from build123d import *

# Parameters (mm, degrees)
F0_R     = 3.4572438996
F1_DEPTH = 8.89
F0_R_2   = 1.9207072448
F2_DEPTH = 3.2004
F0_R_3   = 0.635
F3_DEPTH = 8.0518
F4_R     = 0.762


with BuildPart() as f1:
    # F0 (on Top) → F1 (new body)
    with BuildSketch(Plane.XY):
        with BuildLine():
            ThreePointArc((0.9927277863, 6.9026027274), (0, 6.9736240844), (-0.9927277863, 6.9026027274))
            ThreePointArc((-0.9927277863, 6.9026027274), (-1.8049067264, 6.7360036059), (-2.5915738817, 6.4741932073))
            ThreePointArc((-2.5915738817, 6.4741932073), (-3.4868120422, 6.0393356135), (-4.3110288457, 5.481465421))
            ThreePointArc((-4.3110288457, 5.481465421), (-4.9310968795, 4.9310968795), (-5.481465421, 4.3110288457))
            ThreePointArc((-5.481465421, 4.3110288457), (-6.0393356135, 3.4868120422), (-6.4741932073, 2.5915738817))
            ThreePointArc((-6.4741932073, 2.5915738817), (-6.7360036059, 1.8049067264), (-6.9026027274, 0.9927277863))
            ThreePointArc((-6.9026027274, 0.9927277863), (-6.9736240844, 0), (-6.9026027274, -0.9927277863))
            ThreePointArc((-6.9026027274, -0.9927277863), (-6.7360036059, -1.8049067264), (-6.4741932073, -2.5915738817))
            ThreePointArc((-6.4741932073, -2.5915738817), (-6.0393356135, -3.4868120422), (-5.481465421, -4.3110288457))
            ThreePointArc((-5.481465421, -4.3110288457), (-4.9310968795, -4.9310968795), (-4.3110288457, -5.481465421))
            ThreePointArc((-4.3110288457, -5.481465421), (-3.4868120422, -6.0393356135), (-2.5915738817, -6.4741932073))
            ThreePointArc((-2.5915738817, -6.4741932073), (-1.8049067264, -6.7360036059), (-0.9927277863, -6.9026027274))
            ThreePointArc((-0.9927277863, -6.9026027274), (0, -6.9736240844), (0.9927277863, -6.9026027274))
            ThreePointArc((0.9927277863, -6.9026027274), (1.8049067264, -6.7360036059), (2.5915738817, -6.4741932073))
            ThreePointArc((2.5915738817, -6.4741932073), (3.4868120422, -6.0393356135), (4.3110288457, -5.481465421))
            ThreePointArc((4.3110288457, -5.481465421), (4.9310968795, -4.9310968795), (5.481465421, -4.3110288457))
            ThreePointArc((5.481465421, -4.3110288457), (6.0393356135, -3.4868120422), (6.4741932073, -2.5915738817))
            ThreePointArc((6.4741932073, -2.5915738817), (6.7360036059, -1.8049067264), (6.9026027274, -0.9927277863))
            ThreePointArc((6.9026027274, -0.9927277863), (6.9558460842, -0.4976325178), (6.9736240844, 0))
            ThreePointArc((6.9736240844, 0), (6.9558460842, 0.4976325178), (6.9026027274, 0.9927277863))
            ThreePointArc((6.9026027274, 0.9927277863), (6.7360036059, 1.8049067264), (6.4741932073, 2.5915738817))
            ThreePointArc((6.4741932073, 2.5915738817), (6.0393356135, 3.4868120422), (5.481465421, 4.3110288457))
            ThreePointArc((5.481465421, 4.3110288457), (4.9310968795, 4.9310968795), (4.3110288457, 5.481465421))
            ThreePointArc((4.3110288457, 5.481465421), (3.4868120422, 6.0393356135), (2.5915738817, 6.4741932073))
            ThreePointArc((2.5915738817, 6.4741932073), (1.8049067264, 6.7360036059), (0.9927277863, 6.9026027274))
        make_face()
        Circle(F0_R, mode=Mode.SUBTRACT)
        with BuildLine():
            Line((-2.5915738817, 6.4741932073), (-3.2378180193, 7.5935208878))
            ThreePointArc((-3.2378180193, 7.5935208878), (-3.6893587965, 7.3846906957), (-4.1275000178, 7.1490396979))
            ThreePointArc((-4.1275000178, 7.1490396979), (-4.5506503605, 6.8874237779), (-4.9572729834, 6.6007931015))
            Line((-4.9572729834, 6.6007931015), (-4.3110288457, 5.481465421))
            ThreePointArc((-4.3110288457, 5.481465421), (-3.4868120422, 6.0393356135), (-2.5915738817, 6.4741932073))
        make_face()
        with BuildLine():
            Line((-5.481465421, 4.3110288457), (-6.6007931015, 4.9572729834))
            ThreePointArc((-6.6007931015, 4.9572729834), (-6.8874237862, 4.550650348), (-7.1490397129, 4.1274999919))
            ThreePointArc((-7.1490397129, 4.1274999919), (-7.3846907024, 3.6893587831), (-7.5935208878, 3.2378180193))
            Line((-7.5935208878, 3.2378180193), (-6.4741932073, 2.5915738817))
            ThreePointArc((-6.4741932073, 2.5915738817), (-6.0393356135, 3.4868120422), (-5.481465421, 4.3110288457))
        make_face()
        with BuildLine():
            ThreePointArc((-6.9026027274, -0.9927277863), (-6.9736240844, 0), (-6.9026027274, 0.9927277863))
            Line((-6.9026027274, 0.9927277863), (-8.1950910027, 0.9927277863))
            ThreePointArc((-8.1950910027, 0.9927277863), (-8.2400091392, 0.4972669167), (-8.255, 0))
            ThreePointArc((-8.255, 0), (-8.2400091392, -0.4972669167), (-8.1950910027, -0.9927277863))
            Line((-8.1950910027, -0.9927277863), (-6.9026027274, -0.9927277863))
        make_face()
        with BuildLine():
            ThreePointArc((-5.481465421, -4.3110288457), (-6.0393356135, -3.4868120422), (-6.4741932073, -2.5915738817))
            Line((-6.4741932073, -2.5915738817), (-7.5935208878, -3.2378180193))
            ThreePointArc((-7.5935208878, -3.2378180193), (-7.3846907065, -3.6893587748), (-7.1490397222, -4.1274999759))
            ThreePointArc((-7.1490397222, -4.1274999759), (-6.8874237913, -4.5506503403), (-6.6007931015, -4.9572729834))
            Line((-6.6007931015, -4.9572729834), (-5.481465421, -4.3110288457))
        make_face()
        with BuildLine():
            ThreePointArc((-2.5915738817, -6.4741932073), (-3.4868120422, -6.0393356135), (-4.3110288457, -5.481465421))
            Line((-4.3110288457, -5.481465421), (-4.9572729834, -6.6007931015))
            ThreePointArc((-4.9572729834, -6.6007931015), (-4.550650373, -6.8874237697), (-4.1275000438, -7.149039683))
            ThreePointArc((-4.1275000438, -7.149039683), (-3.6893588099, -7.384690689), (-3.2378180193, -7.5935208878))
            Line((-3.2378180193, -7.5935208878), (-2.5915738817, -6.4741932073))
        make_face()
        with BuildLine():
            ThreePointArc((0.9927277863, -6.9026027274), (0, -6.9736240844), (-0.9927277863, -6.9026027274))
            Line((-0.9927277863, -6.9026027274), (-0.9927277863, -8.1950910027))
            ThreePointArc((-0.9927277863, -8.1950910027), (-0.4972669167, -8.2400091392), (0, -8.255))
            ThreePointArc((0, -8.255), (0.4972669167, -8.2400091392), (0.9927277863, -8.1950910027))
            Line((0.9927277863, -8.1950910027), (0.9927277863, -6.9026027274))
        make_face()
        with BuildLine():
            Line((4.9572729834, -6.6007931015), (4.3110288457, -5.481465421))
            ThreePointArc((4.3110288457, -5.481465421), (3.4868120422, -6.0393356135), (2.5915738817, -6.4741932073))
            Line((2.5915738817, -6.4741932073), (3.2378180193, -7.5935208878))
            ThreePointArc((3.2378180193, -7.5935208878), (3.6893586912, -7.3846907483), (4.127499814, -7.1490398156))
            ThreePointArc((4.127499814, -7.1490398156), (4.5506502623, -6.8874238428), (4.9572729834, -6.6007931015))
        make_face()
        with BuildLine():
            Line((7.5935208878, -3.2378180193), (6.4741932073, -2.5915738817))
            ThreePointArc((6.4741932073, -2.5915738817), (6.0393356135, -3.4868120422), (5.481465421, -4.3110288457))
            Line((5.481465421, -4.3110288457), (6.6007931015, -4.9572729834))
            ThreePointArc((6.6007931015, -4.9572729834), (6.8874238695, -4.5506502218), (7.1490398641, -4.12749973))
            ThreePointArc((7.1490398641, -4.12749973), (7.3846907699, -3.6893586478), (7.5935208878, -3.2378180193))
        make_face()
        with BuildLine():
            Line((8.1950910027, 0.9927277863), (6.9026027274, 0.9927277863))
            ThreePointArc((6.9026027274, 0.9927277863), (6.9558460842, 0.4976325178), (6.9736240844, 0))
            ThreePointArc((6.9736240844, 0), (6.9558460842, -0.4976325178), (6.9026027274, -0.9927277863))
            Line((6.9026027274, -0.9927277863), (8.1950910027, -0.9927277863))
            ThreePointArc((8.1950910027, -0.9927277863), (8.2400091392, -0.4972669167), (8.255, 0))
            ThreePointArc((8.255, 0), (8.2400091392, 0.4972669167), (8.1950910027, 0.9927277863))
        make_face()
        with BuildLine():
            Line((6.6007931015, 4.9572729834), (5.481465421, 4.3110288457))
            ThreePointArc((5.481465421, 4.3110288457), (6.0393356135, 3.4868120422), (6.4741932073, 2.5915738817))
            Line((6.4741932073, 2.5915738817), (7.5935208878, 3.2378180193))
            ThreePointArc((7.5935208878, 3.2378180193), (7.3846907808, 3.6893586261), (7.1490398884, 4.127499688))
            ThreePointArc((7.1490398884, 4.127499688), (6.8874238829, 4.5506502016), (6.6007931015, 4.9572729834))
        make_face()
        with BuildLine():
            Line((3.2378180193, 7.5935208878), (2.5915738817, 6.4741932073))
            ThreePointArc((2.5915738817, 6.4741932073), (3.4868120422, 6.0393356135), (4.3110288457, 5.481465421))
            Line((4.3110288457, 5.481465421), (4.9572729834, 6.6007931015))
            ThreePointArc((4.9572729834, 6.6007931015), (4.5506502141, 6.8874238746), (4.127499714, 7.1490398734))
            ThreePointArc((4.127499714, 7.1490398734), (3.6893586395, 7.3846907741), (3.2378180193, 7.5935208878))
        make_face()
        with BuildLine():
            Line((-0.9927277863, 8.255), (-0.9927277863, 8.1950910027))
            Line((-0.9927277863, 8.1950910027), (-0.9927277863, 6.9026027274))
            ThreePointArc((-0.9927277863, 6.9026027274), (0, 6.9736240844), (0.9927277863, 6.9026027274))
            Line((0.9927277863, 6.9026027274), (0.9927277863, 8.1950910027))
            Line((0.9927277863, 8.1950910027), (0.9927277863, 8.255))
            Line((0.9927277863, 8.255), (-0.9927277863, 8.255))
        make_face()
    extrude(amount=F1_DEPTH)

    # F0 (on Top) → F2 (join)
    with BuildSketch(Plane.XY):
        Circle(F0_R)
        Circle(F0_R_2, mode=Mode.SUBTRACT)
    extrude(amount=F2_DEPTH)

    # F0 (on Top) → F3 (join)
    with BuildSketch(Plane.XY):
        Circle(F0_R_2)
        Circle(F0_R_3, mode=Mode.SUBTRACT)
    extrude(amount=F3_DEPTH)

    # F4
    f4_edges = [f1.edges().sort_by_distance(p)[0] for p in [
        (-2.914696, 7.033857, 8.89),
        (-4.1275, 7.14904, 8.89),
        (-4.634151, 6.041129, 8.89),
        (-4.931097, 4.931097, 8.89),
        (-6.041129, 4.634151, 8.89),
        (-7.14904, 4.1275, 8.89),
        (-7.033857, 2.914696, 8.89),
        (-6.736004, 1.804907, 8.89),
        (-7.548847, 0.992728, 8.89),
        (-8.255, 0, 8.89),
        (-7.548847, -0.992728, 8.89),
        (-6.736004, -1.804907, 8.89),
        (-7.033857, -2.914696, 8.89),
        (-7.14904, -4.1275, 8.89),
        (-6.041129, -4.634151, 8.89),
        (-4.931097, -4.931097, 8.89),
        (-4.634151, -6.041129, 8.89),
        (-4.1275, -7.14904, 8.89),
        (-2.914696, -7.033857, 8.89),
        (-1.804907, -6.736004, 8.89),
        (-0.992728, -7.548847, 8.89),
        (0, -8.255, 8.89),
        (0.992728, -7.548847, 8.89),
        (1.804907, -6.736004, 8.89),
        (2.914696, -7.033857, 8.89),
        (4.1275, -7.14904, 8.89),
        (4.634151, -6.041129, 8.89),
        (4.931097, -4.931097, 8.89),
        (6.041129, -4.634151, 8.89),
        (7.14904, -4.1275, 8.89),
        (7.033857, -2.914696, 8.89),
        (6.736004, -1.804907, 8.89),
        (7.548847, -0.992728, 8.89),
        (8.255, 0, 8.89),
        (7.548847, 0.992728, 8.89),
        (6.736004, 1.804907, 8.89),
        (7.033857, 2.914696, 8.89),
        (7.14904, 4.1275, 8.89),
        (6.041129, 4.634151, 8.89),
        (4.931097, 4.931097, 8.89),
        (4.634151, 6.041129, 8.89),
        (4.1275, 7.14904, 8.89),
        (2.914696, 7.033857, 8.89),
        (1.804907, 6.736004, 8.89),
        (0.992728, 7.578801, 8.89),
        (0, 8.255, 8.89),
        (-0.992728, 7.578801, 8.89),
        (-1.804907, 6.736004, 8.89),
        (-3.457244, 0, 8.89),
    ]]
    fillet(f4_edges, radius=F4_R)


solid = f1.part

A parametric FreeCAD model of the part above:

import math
import FreeCAD as App
import Part
import Sketcher
Q = App.Units.Quantity


def edges_at(feature, points):
    """Names of the edges that pass closest to the given points."""
    edges = feature.Shape.Edges
    near = lambda p: min(range(len(edges)), key=lambda i: edges[i].distToShape(Part.Vertex(*p))[0])
    return sorted({f"Edge{near(p) + 1}" for p in points})

doc = App.newDocument("Part")
body = doc.addObject("PartDesign::Body", "Body")

# Sketch on XY plane
sketch1 = doc.addObject("Sketcher::SketchObject", "Sketch")
body.addObject(sketch1)
sketch1.AttachmentSupport = (doc.XY_Plane, [""])
sketch1.MapMode = "FlatFace"
sketch1.addGeometry(Part.ArcOfCircle(Part.Circle(App.Vector(0, 0, 0), App.Vector(0, 0, 1), 7), math.radians(98.18), math.radians(111.82)), False)
sketch1.addGeometry(Part.LineSegment(App.Vector(-2.6, 6.5, 0), App.Vector(-3.2, 7.6, 0)), False)
sketch1.addGeometry(Part.ArcOfCircle(Part.Circle(App.Vector(0, 0, 0), App.Vector(0, 0, 1), 8.3), math.radians(113.09), math.radians(120)), False)
sketch1.addGeometry(Part.ArcOfCircle(Part.Circle(App.Vector(0, 0, 0), App.Vector(0, 0, 1), 8.3), math.radians(120), math.radians(126.91)), False)
sketch1.addGeometry(Part.LineSegment(App.Vector(-5, 6.6, 0), App.Vector(-4.3, 5.5, 0)), False)
sketch1.addGeometry(Part.ArcOfCircle(Part.Circle(App.Vector(0, 0, 0), App.Vector(0, 0, 1), 7), math.radians(128.18), math.radians(141.82)), False)
sketch1.addGeometry(Part.LineSegment(App.Vector(-5.5, 4.3, 0), App.Vector(-6.6, 5, 0)), False)
sketch1.addGeometry(Part.ArcOfCircle(Part.Circle(App.Vector(0, 0, 0), App.Vector(0, 0, 1), 8.3), math.radians(143.09), math.radians(150)), False)
sketch1.addGeometry(Part.ArcOfCircle(Part.Circle(App.Vector(0, 0, 0), App.Vector(0, 0, 1), 8.3), math.radians(150), math.radians(156.91)), False)
sketch1.addGeometry(Part.LineSegment(App.Vector(-7.6, 3.2, 0), App.Vector(-6.5, 2.6, 0)), False)
sketch1.addGeometry(Part.ArcOfCircle(Part.Circle(App.Vector(0, 0, 0), App.Vector(0, 0, 1), 7), math.radians(158.18), math.radians(171.82)), False)
sketch1.addGeometry(Part.LineSegment(App.Vector(-6.9, 1, 0), App.Vector(-8.2, 1, 0)), False)
sketch1.addGeometry(Part.ArcOfCircle(Part.Circle(App.Vector(0, 0, 0), App.Vector(0, 0, 1), 8.3), math.radians(173.09), math.radians(180)), False)
sketch1.addGeometry(Part.ArcOfCircle(Part.Circle(App.Vector(0, 0, 0), App.Vector(0, 0, 1), 8.3), math.radians(180), math.radians(186.91)), False)
sketch1.addGeometry(Part.LineSegment(App.Vector(-8.2, -1, 0), App.Vector(-6.9, -1, 0)), False)
sketch1.addGeometry(Part.ArcOfCircle(Part.Circle(App.Vector(0, 0, 0), App.Vector(0, 0, 1), 7), math.radians(-171.82), math.radians(-158.18)), False)
sketch1.addGeometry(Part.LineSegment(App.Vector(-6.5, -2.6, 0), App.Vector(-7.6, -3.2, 0)), False)
sketch1.addGeometry(Part.ArcOfCircle(Part.Circle(App.Vector(0, 0, 0), App.Vector(0, 0, 1), 8.3), math.radians(-156.91), math.radians(-150)), False)
sketch1.addGeometry(Part.ArcOfCircle(Part.Circle(App.Vector(0, 0, 0), App.Vector(0, 0, 1), 8.3), math.radians(-150), math.radians(-143.09)), False)
sketch1.addGeometry(Part.LineSegment(App.Vector(-6.6, -5, 0), App.Vector(-5.5, -4.3, 0)), False)
sketch1.addGeometry(Part.ArcOfCircle(Part.Circle(App.Vector(0, 0, 0), App.Vector(0, 0, 1), 7), math.radians(-141.82), math.radians(-128.18)), False)
sketch1.addGeometry(Part.LineSegment(App.Vector(-4.3, -5.5, 0), App.Vector(-5, -6.6, 0)), False)
sketch1.addGeometry(Part.ArcOfCircle(Part.Circle(App.Vector(0, 0, 0), App.Vector(0, 0, 1), 8.3), math.radians(-126.91), math.radians(-120)), False)
sketch1.addGeometry(Part.ArcOfCircle(Part.Circle(App.Vector(0, 0, 0), App.Vector(0, 0, 1), 8.3), math.radians(-120), math.radians(-113.09)), False)
sketch1.addGeometry(Part.LineSegment(App.Vector(-3.2, -7.6, 0), App.Vector(-2.6, -6.5, 0)), False)
sketch1.addGeometry(Part.ArcOfCircle(Part.Circle(App.Vector(0, 0, 0), App.Vector(0, 0, 1), 7), math.radians(-111.82), math.radians(-98.18)), False)
sketch1.addGeometry(Part.LineSegment(App.Vector(-1, -6.9, 0), App.Vector(-1, -8.2, 0)), False)
sketch1.addGeometry(Part.ArcOfCircle(Part.Circle(App.Vector(0, 0, 0), App.Vector(0, 0, 1), 8.3), math.radians(-96.91), math.radians(-90)), False)
sketch1.addGeometry(Part.ArcOfCircle(Part.Circle(App.Vector(0, 0, 0), App.Vector(0, 0, 1), 8.3), math.radians(-90), math.radians(-83.09)), False)
sketch1.addGeometry(Part.LineSegment(App.Vector(1, -8.2, 0), App.Vector(1, -6.9, 0)), False)
sketch1.addGeometry(Part.ArcOfCircle(Part.Circle(App.Vector(0, 0, 0), App.Vector(0, 0, 1), 7), math.radians(-81.82), math.radians(-68.18)), False)
sketch1.addGeometry(Part.LineSegment(App.Vector(2.6, -6.5, 0), App.Vector(3.2, -7.6, 0)), False)
sketch1.addGeometry(Part.ArcOfCircle(Part.Circle(App.Vector(0, 0, 0), App.Vector(0, 0, 1), 8.3), math.radians(-66.91), math.radians(-60)), False)
sketch1.addGeometry(Part.ArcOfCircle(Part.Circle(App.Vector(0, 0, 0), App.Vector(0, 0, 1), 8.3), math.radians(-60), math.radians(-53.09)), False)
sketch1.addGeometry(Part.LineSegment(App.Vector(5, -6.6, 0), App.Vector(4.3, -5.5, 0)), False)
sketch1.addGeometry(Part.ArcOfCircle(Part.Circle(App.Vector(0, 0, 0), App.Vector(0, 0, 1), 7), math.radians(-51.82), math.radians(-38.18)), False)
sketch1.addGeometry(Part.LineSegment(App.Vector(5.5, -4.3, 0), App.Vector(6.6, -5, 0)), False)
sketch1.addGeometry(Part.ArcOfCircle(Part.Circle(App.Vector(0, 0, 0), App.Vector(0, 0, 1), 8.3), math.radians(-36.91), math.radians(-30)), False)
sketch1.addGeometry(Part.ArcOfCircle(Part.Circle(App.Vector(0, 0, 0), App.Vector(0, 0, 1), 8.3), math.radians(-30), math.radians(-23.09)), False)
sketch1.addGeometry(Part.LineSegment(App.Vector(7.6, -3.2, 0), App.Vector(6.5, -2.6, 0)), False)
sketch1.addGeometry(Part.ArcOfCircle(Part.Circle(App.Vector(0, 0, 0), App.Vector(0, 0, 1), 7), math.radians(-21.82), math.radians(-8.18)), False)
sketch1.addGeometry(Part.LineSegment(App.Vector(6.9, -1, 0), App.Vector(8.2, -1, 0)), False)
sketch1.addGeometry(Part.ArcOfCircle(Part.Circle(App.Vector(0, 0, 0), App.Vector(0, 0, 1), 8.3), math.radians(-6.91), math.radians(0)), False)
sketch1.addGeometry(Part.ArcOfCircle(Part.Circle(App.Vector(0, 0, 0), App.Vector(0, 0, 1), 8.3), math.radians(0), math.radians(6.91)), False)
sketch1.addGeometry(Part.LineSegment(App.Vector(8.2, 1, 0), App.Vector(6.9, 1, 0)), False)
sketch1.addGeometry(Part.ArcOfCircle(Part.Circle(App.Vector(0, 0, 0), App.Vector(0, 0, 1), 7), math.radians(8.18), math.radians(21.82)), False)
sketch1.addGeometry(Part.LineSegment(App.Vector(6.5, 2.6, 0), App.Vector(7.6, 3.2, 0)), False)
sketch1.addGeometry(Part.ArcOfCircle(Part.Circle(App.Vector(0, 0, 0), App.Vector(0, 0, 1), 8.3), math.radians(23.09), math.radians(30)), False)
sketch1.addGeometry(Part.ArcOfCircle(Part.Circle(App.Vector(0, 0, 0), App.Vector(0, 0, 1), 8.3), math.radians(30), math.radians(36.91)), False)
sketch1.addGeometry(Part.LineSegment(App.Vector(6.6, 5, 0), App.Vector(5.5, 4.3, 0)), False)
sketch1.addGeometry(Part.ArcOfCircle(Part.Circle(App.Vector(0, 0, 0), App.Vector(0, 0, 1), 7), math.radians(38.18), math.radians(51.82)), False)
sketch1.addGeometry(Part.LineSegment(App.Vector(4.3, 5.5, 0), App.Vector(5, 6.6, 0)), False)
sketch1.addGeometry(Part.ArcOfCircle(Part.Circle(App.Vector(0, 0, 0), App.Vector(0, 0, 1), 8.3), math.radians(53.09), math.radians(60)), False)
sketch1.addGeometry(Part.ArcOfCircle(Part.Circle(App.Vector(0, 0, 0), App.Vector(0, 0, 1), 8.3), math.radians(60), math.radians(66.91)), False)
sketch1.addGeometry(Part.LineSegment(App.Vector(3.2, 7.6, 0), App.Vector(2.6, 6.5, 0)), False)
sketch1.addGeometry(Part.ArcOfCircle(Part.Circle(App.Vector(0, 0, 0), App.Vector(0, 0, 1), 7), math.radians(68.18), math.radians(81.82)), False)
sketch1.addGeometry(Part.LineSegment(App.Vector(1, 6.9, 0), App.Vector(1, 8.3, 0)), False)
sketch1.addGeometry(Part.LineSegment(App.Vector(1, 8.3, 0), App.Vector(-1, 8.3, 0)), False)
sketch1.addGeometry(Part.LineSegment(App.Vector(-1, 8.3, 0), App.Vector(-1, 6.9, 0)), False)
sketch1.addGeometry(Part.Circle(App.Vector(0, 0, 0), App.Vector(0, 0, 1), 3.5), False)
sketch1.addConstraint(Sketcher.Constraint("Coincident", 0, 2, 1, 1))
sketch1.addConstraint(Sketcher.Constraint("Coincident", 1, 2, 2, 1))
sketch1.addConstraint(Sketcher.Constraint("Tangent", 2, 2, 3, 1))
sketch1.addConstraint(Sketcher.Constraint("Coincident", 3, 2, 4, 1))
sketch1.addConstraint(Sketcher.Constraint("Coincident", 4, 2, 5, 1))
sketch1.addConstraint(Sketcher.Constraint("Coincident", 5, 2, 6, 1))
sketch1.addConstraint(Sketcher.Constraint("Coincident", 6, 2, 7, 1))
sketch1.addConstraint(Sketcher.Constraint("Tangent", 7, 2, 8, 1))
sketch1.addConstraint(Sketcher.Constraint("Coincident", 8, 2, 9, 1))
sketch1.addConstraint(Sketcher.Constraint("Coincident", 9, 2, 10, 1))
sketch1.addConstraint(Sketcher.Constraint("Coincident", 10, 2, 11, 1))
sketch1.addConstraint(Sketcher.Constraint("Coincident", 11, 2, 12, 1))
sketch1.addConstraint(Sketcher.Constraint("Tangent", 12, 2, 13, 1))
sketch1.addConstraint(Sketcher.Constraint("Coincident", 13, 2, 14, 1))
sketch1.addConstraint(Sketcher.Constraint("Coincident", 14, 2, 15, 1))
sketch1.addConstraint(Sketcher.Constraint("Coincident", 15, 2, 16, 1))
sketch1.addConstraint(Sketcher.Constraint("Coincident", 16, 2, 17, 1))
sketch1.addConstraint(Sketcher.Constraint("Tangent", 17, 2, 18, 1))
sketch1.addConstraint(Sketcher.Constraint("Coincident", 18, 2, 19, 1))
sketch1.addConstraint(Sketcher.Constraint("Coincident", 19, 2, 20, 1))
sketch1.addConstraint(Sketcher.Constraint("Coincident", 20, 2, 21, 1))
sketch1.addConstraint(Sketcher.Constraint("Coincident", 21, 2, 22, 1))
sketch1.addConstraint(Sketcher.Constraint("Tangent", 22, 2, 23, 1))
sketch1.addConstraint(Sketcher.Constraint("Coincident", 23, 2, 24, 1))
sketch1.addConstraint(Sketcher.Constraint("Coincident", 24, 2, 25, 1))
sketch1.addConstraint(Sketcher.Constraint("Coincident", 25, 2, 26, 1))
sketch1.addConstraint(Sketcher.Constraint("Coincident", 26, 2, 27, 1))
sketch1.addConstraint(Sketcher.Constraint("Tangent", 27, 2, 28, 1))
sketch1.addConstraint(Sketcher.Constraint("Coincident", 28, 2, 29, 1))
sketch1.addConstraint(Sketcher.Constraint("Coincident", 29, 2, 30, 1))
sketch1.addConstraint(Sketcher.Constraint("Coincident", 30, 2, 31, 1))
sketch1.addConstraint(Sketcher.Constraint("Coincident", 31, 2, 32, 1))
sketch1.addConstraint(Sketcher.Constraint("Tangent", 32, 2, 33, 1))
sketch1.addConstraint(Sketcher.Constraint("Coincident", 33, 2, 34, 1))
sketch1.addConstraint(Sketcher.Constraint("Coincident", 34, 2, 35, 1))
sketch1.addConstraint(Sketcher.Constraint("Coincident", 35, 2, 36, 1))
sketch1.addConstraint(Sketcher.Constraint("Coincident", 36, 2, 37, 1))
sketch1.addConstraint(Sketcher.Constraint("Tangent", 37, 2, 38, 1))
sketch1.addConstraint(Sketcher.Constraint("Coincident", 38, 2, 39, 1))
sketch1.addConstraint(Sketcher.Constraint("Coincident", 39, 2, 40, 1))
sketch1.addConstraint(Sketcher.Constraint("Coincident", 40, 2, 41, 1))
sketch1.addConstraint(Sketcher.Constraint("Coincident", 41, 2, 42, 1))
sketch1.addConstraint(Sketcher.Constraint("Tangent", 42, 2, 43, 1))
sketch1.addConstraint(Sketcher.Constraint("Coincident", 43, 2, 44, 1))
sketch1.addConstraint(Sketcher.Constraint("Coincident", 44, 2, 45, 1))
sketch1.addConstraint(Sketcher.Constraint("Coincident", 45, 2, 46, 1))
sketch1.addConstraint(Sketcher.Constraint("Coincident", 46, 2, 47, 1))
sketch1.addConstraint(Sketcher.Constraint("Tangent", 47, 2, 48, 1))
sketch1.addConstraint(Sketcher.Constraint("Coincident", 48, 2, 49, 1))
sketch1.addConstraint(Sketcher.Constraint("Coincident", 49, 2, 50, 1))
sketch1.addConstraint(Sketcher.Constraint("Coincident", 50, 2, 51, 1))
sketch1.addConstraint(Sketcher.Constraint("Coincident", 51, 2, 52, 1))
sketch1.addConstraint(Sketcher.Constraint("Tangent", 52, 2, 53, 1))
sketch1.addConstraint(Sketcher.Constraint("Coincident", 53, 2, 54, 1))
sketch1.addConstraint(Sketcher.Constraint("Coincident", 54, 2, 55, 1))
sketch1.addConstraint(Sketcher.Constraint("Coincident", 55, 2, 56, 1))
sketch1.addConstraint(Sketcher.Constraint("Coincident", 56, 2, 57, 1))
sketch1.addConstraint(Sketcher.Constraint("Coincident", 57, 2, 58, 1))
sketch1.addConstraint(Sketcher.Constraint("Coincident", 58, 2, 0, 1))
sketch1.addConstraint(Sketcher.Constraint("Horizontal", 11))
sketch1.addConstraint(Sketcher.Constraint("Horizontal", 14))
sketch1.addConstraint(Sketcher.Constraint("Vertical", 26))
sketch1.addConstraint(Sketcher.Constraint("Vertical", 29))
sketch1.addConstraint(Sketcher.Constraint("Horizontal", 41))
sketch1.addConstraint(Sketcher.Constraint("Horizontal", 44))
sketch1.addConstraint(Sketcher.Constraint("Vertical", 56))
sketch1.addConstraint(Sketcher.Constraint("Horizontal", 57))
sketch1.addConstraint(Sketcher.Constraint("Vertical", 58))
sketch1.addConstraint(Sketcher.Constraint("Coincident", 0, 3, -1, 1))
sketch1.addConstraint(Sketcher.Constraint("Coincident", 2, 3, -1, 1))
sketch1.addConstraint(Sketcher.Constraint("Coincident", 5, 3, -1, 1))
sketch1.addConstraint(Sketcher.Constraint("Coincident", 7, 3, -1, 1))
sketch1.addConstraint(Sketcher.Constraint("Coincident", 10, 3, -1, 1))
sketch1.addConstraint(Sketcher.Constraint("Coincident", 12, 3, -1, 1))
sketch1.addConstraint(Sketcher.Constraint("Coincident", 15, 3, -1, 1))
sketch1.addConstraint(Sketcher.Constraint("Coincident", 17, 3, -1, 1))
sketch1.addConstraint(Sketcher.Constraint("Coincident", 20, 3, -1, 1))
sketch1.addConstraint(Sketcher.Constraint("Coincident", 22, 3, -1, 1))
sketch1.addConstraint(Sketcher.Constraint("Coincident", 25, 3, -1, 1))
sketch1.addConstraint(Sketcher.Constraint("Coincident", 27, 3, -1, 1))
sketch1.addConstraint(Sketcher.Constraint("Coincident", 30, 3, -1, 1))
sketch1.addConstraint(Sketcher.Constraint("Coincident", 32, 3, -1, 1))
sketch1.addConstraint(Sketcher.Constraint("Coincident", 35, 3, -1, 1))
sketch1.addConstraint(Sketcher.Constraint("Coincident", 37, 3, -1, 1))
sketch1.addConstraint(Sketcher.Constraint("Coincident", 40, 3, -1, 1))
sketch1.addConstraint(Sketcher.Constraint("Coincident", 42, 3, -1, 1))
sketch1.addConstraint(Sketcher.Constraint("Coincident", 45, 3, -1, 1))
sketch1.addConstraint(Sketcher.Constraint("Coincident", 47, 3, -1, 1))
sketch1.addConstraint(Sketcher.Constraint("Coincident", 50, 3, -1, 1))
sketch1.addConstraint(Sketcher.Constraint("Coincident", 52, 3, -1, 1))
sketch1.addConstraint(Sketcher.Constraint("Coincident", 55, 3, -1, 1))
sketch1.addConstraint(Sketcher.Constraint("Coincident", 59, 3, -1, 1))
sketch1.addConstraint(Sketcher.Constraint("Equal", 2, 3))
sketch1.addConstraint(Sketcher.Constraint("Equal", 0, 5))
sketch1.addConstraint(Sketcher.Constraint("Equal", 3, 7))
sketch1.addConstraint(Sketcher.Constraint("Equal", 7, 8))
sketch1.addConstraint(Sketcher.Constraint("Equal", 5, 10))
sketch1.addConstraint(Sketcher.Constraint("Equal", 8, 12))
sketch1.addConstraint(Sketcher.Constraint("Equal", 12, 13))
sketch1.addConstraint(Sketcher.Constraint("Equal", 10, 15))
sketch1.addConstraint(Sketcher.Constraint("Equal", 13, 17))
sketch1.addConstraint(Sketcher.Constraint("Equal", 17, 18))
sketch1.addConstraint(Sketcher.Constraint("Equal", 15, 20))
sketch1.addConstraint(Sketcher.Constraint("Equal", 18, 22))
sketch1.addConstraint(Sketcher.Constraint("Equal", 22, 23))
sketch1.addConstraint(Sketcher.Constraint("Equal", 20, 25))
sketch1.addConstraint(Sketcher.Constraint("Equal", 23, 27))
sketch1.addConstraint(Sketcher.Constraint("Equal", 27, 28))
sketch1.addConstraint(Sketcher.Constraint("Equal", 25, 30))
sketch1.addConstraint(Sketcher.Constraint("Equal", 28, 32))
sketch1.addConstraint(Sketcher.Constraint("Equal", 32, 33))
sketch1.addConstraint(Sketcher.Constraint("Equal", 30, 35))
sketch1.addConstraint(Sketcher.Constraint("Equal", 33, 37))
sketch1.addConstraint(Sketcher.Constraint("Equal", 37, 38))
sketch1.addConstraint(Sketcher.Constraint("Equal", 35, 40))
sketch1.addConstraint(Sketcher.Constraint("Equal", 38, 42))
sketch1.addConstraint(Sketcher.Constraint("Equal", 42, 43))
sketch1.addConstraint(Sketcher.Constraint("Equal", 40, 45))
sketch1.addConstraint(Sketcher.Constraint("Equal", 43, 47))
sketch1.addConstraint(Sketcher.Constraint("Equal", 47, 48))
sketch1.addConstraint(Sketcher.Constraint("Equal", 45, 50))
sketch1.addConstraint(Sketcher.Constraint("Equal", 48, 52))
sketch1.addConstraint(Sketcher.Constraint("Equal", 52, 53))
sketch1.addConstraint(Sketcher.Constraint("Equal", 50, 55))
sketch1.addConstraint(Sketcher.Constraint("PointOnObject", 12, 2, -1))
sketch1.addConstraint(Sketcher.Constraint("PointOnObject", 27, 2, -2))
sketch1.addConstraint(Sketcher.Constraint("PointOnObject", 42, 2, -1))
sketch1.addConstraint(Sketcher.Constraint("Parallel", 1, 4))
sketch1.addConstraint(Sketcher.Constraint("Parallel", 6, 9))
sketch1.addConstraint(Sketcher.Constraint("Perpendicular", 4, 16))
sketch1.addConstraint(Sketcher.Constraint("Parallel", 16, 19))
sketch1.addConstraint(Sketcher.Constraint("Perpendicular", 9, 21))
sketch1.addConstraint(Sketcher.Constraint("Parallel", 21, 24))
sketch1.addConstraint(Sketcher.Constraint("Perpendicular", 19, 31))
sketch1.addConstraint(Sketcher.Constraint("Parallel", 31, 34))
sketch1.addConstraint(Sketcher.Constraint("Perpendicular", 24, 36))
sketch1.addConstraint(Sketcher.Constraint("Parallel", 36, 39))
sketch1.addConstraint(Sketcher.Constraint("Perpendicular", 34, 46))
sketch1.addConstraint(Sketcher.Constraint("Parallel", 46, 49))
sketch1.addConstraint(Sketcher.Constraint("Perpendicular", 39, 51))
sketch1.addConstraint(Sketcher.Constraint("Parallel", 51, 54))
sketch1.addConstraint(Sketcher.Constraint("Horizontal", 26, 2, 28, 2))
sketch1.addConstraint(Sketcher.Constraint("Horizontal", 24, 2, 30, 2))
sketch1.addConstraint(Sketcher.Constraint("Horizontal", 23, 2, 31, 2))
sketch1.addConstraint(Sketcher.Constraint("Horizontal", 22, 2, 32, 2))
sketch1.addConstraint(Sketcher.Constraint("Horizontal", 21, 2, 33, 2))
sketch1.addConstraint(Sketcher.Constraint("Horizontal", 19, 2, 35, 2))
sketch1.addConstraint(Sketcher.Constraint("Horizontal", 17, 2, 37, 2))
sketch1.addConstraint(Sketcher.Constraint("Horizontal", 16, 2, 38, 2))
sketch1.addConstraint(Sketcher.Constraint("Horizontal", 14, 2, 40, 2))
sketch1.addConstraint(Sketcher.Constraint("Horizontal", 11, 2, 43, 2))
sketch1.addConstraint(Sketcher.Constraint("Horizontal", 9, 2, 45, 2))
sketch1.addConstraint(Sketcher.Constraint("Horizontal", 7, 2, 47, 2))
sketch1.addConstraint(Sketcher.Constraint("Horizontal", 6, 2, 48, 2))
sketch1.addConstraint(Sketcher.Constraint("Horizontal", 4, 2, 50, 2))
sketch1.addConstraint(Sketcher.Constraint("Horizontal", 2, 2, 52, 2))
sketch1.addConstraint(Sketcher.Constraint("Horizontal", 1, 2, 53, 2))
sketch1.addConstraint(Sketcher.Constraint("Horizontal", 55, 2, 58, 2))
sketch1.addConstraint(Sketcher.Constraint("Vertical", 11, 2, 13, 2))
sketch1.addConstraint(Sketcher.Constraint("Vertical", 9, 2, 15, 2))
sketch1.addConstraint(Sketcher.Constraint("Vertical", 7, 2, 17, 2))
sketch1.addConstraint(Sketcher.Constraint("Vertical", 6, 2, 18, 2))
sketch1.addConstraint(Sketcher.Constraint("Vertical", 4, 2, 20, 2))
sketch1.addConstraint(Sketcher.Constraint("Vertical", 2, 2, 22, 2))
sketch1.addConstraint(Sketcher.Constraint("Vertical", 1, 2, 23, 2))
sketch1.addConstraint(Sketcher.Constraint("Vertical", 29, 2, 55, 2))
sketch1.addConstraint(Sketcher.Constraint("Equal", 44, 26))
sketch1.addConstraint(Sketcher.Constraint("Equal", 1, 4))
sketch1.addConstraint(Sketcher.Constraint("Equal", 4, 6))
sketch1.addConstraint(Sketcher.Constraint("Equal", 6, 9))
sketch1.addConstraint(Sketcher.Constraint("Angle", 1, Q("120 deg")))
sketch1.addConstraint(Sketcher.Constraint("Radius", 2, Q("0.325 in")))
sketch1.addConstraint(Sketcher.Constraint("DistanceY", -1, 1, 56, 2, Q("0.325 in")))
sketch1.addConstraint(Sketcher.Constraint("Diameter", 59, Q("6.914488 mm")))
sketch1.addConstraint(Sketcher.Constraint("DistanceX", 2, 2, -1, 1, Q("0.1625 in")))
sketch1.addConstraint(Sketcher.Constraint("DistanceY", -1, 1, 7, 2, Q("0.1625 in")))
sketch1.addConstraint(Sketcher.Constraint("Radius", 0, Q("6.973624 mm")))
sketch1.addConstraint(Sketcher.Constraint("DistanceX", 11, 2, 11, 1, Q("1.292488 mm")))
sketch1.addConstraint(Sketcher.Constraint("Distance", 1, Q("1.292488 mm")))
pad1 = doc.addObject("PartDesign::Pad", "Pad")
body.addObject(pad1)
pad1.Profile = sketch1
pad1.Length = Q("0.35 in")

# Sketch on XY plane
sketch2 = doc.addObject("Sketcher::SketchObject", "Sketch001")
body.addObject(sketch2)
sketch2.AttachmentSupport = (doc.XY_Plane, [""])
sketch2.MapMode = "FlatFace"
sketch2.addGeometry(Part.Circle(App.Vector(0, 0, 0), App.Vector(0, 0, 1), 3.5), False)
sketch2.addGeometry(Part.Circle(App.Vector(0, 0, 0), App.Vector(0, 0, 1), 1.9), False)
sketch2.addConstraint(Sketcher.Constraint("Coincident", 0, 3, -1, 1))
sketch2.addConstraint(Sketcher.Constraint("Coincident", 1, 3, -1, 1))
sketch2.addConstraint(Sketcher.Constraint("Diameter", 0, Q("6.914488 mm")))
sketch2.addConstraint(Sketcher.Constraint("Diameter", 1, Q("3.841414 mm")))
pad2 = doc.addObject("PartDesign::Pad", "Pad001")
body.addObject(pad2)
pad2.Profile = sketch2
pad2.Length = Q("0.126 in")

# Sketch on XY plane
sketch3 = doc.addObject("Sketcher::SketchObject", "Sketch002")
body.addObject(sketch3)
sketch3.AttachmentSupport = (doc.XY_Plane, [""])
sketch3.MapMode = "FlatFace"
sketch3.addGeometry(Part.Circle(App.Vector(0, 0, 0), App.Vector(0, 0, 1), 1.9), False)
sketch3.addGeometry(Part.Circle(App.Vector(0, 0, 0), App.Vector(0, 0, 1), 0.6), False)
sketch3.addConstraint(Sketcher.Constraint("Coincident", 0, 3, -1, 1))
sketch3.addConstraint(Sketcher.Constraint("Coincident", 1, 3, -1, 1))
sketch3.addConstraint(Sketcher.Constraint("Diameter", 1, Q("0.05 in")))
sketch3.addConstraint(Sketcher.Constraint("Diameter", 0, Q("3.841414 mm")))
pad3 = doc.addObject("PartDesign::Pad", "Pad002")
body.addObject(pad3)
pad3.Profile = sketch3
pad3.Length = Q("0.317 in")
doc.recompute()

fillet = doc.addObject("PartDesign::Fillet", "Fillet")
body.addObject(fillet)
fillet.Base = (pad3, edges_at(pad3, [
    (-2.915, 7.034, 8.89),
    (-3.689, 7.385, 8.89),
    (-4.634, 6.041, 8.89),
    (-4.931, 4.931, 8.89),
    (-6.041, 4.634, 8.89),
    (-7.385, 3.689, 8.89),
    (-7.034, 2.915, 8.89),
    (-6.736, 1.805, 8.89),
    (-7.549, 0.993, 8.89),
    (-8.24, 0.497, 8.89),
    (-7.549, -0.993, 8.89),
    (-6.736, -1.805, 8.89),
    (-7.034, -2.915, 8.89),
    (-7.385, -3.689, 8.89),
    (-6.041, -4.634, 8.89),
    (-4.931, -4.931, 8.89),
    (-4.634, -6.041, 8.89),
    (-3.689, -7.385, 8.89),
    (-2.915, -7.034, 8.89),
    (-1.805, -6.736, 8.89),
    (-0.993, -7.549, 8.89),
    (-0.497, -8.24, 8.89),
    (0.993, -7.549, 8.89),
    (1.805, -6.736, 8.89),
    (2.915, -7.034, 8.89),
    (3.689, -7.385, 8.89),
    (4.634, -6.041, 8.89),
    (4.931, -4.931, 8.89),
    (6.041, -4.634, 8.89),
    (6.887, -4.551, 8.89),
    (7.034, -2.915, 8.89),
    (6.736, -1.805, 8.89),
    (7.549, -0.993, 8.89),
    (8.24, -0.497, 8.89),
    (7.549, 0.993, 8.89),
    (6.736, 1.805, 8.89),
    (7.034, 2.915, 8.89),
    (6.887, 4.551, 8.89),
    (6.041, 4.634, 8.89),
    (4.931, 4.931, 8.89),
    (4.634, 6.041, 8.89),
    (4.551, 6.887, 8.89),
    (2.915, 7.034, 8.89),
    (1.805, 6.736, 8.89),
    (0.993, 7.579, 8.89),
    (0, 8.255, 8.89),
    (-0.993, 7.579, 8.89),
    (-1.805, 6.736, 8.89),
    (-3.457, 0, 8.89),
]))
fillet.Radius = Q("0.03 in")

doc.recompute()
